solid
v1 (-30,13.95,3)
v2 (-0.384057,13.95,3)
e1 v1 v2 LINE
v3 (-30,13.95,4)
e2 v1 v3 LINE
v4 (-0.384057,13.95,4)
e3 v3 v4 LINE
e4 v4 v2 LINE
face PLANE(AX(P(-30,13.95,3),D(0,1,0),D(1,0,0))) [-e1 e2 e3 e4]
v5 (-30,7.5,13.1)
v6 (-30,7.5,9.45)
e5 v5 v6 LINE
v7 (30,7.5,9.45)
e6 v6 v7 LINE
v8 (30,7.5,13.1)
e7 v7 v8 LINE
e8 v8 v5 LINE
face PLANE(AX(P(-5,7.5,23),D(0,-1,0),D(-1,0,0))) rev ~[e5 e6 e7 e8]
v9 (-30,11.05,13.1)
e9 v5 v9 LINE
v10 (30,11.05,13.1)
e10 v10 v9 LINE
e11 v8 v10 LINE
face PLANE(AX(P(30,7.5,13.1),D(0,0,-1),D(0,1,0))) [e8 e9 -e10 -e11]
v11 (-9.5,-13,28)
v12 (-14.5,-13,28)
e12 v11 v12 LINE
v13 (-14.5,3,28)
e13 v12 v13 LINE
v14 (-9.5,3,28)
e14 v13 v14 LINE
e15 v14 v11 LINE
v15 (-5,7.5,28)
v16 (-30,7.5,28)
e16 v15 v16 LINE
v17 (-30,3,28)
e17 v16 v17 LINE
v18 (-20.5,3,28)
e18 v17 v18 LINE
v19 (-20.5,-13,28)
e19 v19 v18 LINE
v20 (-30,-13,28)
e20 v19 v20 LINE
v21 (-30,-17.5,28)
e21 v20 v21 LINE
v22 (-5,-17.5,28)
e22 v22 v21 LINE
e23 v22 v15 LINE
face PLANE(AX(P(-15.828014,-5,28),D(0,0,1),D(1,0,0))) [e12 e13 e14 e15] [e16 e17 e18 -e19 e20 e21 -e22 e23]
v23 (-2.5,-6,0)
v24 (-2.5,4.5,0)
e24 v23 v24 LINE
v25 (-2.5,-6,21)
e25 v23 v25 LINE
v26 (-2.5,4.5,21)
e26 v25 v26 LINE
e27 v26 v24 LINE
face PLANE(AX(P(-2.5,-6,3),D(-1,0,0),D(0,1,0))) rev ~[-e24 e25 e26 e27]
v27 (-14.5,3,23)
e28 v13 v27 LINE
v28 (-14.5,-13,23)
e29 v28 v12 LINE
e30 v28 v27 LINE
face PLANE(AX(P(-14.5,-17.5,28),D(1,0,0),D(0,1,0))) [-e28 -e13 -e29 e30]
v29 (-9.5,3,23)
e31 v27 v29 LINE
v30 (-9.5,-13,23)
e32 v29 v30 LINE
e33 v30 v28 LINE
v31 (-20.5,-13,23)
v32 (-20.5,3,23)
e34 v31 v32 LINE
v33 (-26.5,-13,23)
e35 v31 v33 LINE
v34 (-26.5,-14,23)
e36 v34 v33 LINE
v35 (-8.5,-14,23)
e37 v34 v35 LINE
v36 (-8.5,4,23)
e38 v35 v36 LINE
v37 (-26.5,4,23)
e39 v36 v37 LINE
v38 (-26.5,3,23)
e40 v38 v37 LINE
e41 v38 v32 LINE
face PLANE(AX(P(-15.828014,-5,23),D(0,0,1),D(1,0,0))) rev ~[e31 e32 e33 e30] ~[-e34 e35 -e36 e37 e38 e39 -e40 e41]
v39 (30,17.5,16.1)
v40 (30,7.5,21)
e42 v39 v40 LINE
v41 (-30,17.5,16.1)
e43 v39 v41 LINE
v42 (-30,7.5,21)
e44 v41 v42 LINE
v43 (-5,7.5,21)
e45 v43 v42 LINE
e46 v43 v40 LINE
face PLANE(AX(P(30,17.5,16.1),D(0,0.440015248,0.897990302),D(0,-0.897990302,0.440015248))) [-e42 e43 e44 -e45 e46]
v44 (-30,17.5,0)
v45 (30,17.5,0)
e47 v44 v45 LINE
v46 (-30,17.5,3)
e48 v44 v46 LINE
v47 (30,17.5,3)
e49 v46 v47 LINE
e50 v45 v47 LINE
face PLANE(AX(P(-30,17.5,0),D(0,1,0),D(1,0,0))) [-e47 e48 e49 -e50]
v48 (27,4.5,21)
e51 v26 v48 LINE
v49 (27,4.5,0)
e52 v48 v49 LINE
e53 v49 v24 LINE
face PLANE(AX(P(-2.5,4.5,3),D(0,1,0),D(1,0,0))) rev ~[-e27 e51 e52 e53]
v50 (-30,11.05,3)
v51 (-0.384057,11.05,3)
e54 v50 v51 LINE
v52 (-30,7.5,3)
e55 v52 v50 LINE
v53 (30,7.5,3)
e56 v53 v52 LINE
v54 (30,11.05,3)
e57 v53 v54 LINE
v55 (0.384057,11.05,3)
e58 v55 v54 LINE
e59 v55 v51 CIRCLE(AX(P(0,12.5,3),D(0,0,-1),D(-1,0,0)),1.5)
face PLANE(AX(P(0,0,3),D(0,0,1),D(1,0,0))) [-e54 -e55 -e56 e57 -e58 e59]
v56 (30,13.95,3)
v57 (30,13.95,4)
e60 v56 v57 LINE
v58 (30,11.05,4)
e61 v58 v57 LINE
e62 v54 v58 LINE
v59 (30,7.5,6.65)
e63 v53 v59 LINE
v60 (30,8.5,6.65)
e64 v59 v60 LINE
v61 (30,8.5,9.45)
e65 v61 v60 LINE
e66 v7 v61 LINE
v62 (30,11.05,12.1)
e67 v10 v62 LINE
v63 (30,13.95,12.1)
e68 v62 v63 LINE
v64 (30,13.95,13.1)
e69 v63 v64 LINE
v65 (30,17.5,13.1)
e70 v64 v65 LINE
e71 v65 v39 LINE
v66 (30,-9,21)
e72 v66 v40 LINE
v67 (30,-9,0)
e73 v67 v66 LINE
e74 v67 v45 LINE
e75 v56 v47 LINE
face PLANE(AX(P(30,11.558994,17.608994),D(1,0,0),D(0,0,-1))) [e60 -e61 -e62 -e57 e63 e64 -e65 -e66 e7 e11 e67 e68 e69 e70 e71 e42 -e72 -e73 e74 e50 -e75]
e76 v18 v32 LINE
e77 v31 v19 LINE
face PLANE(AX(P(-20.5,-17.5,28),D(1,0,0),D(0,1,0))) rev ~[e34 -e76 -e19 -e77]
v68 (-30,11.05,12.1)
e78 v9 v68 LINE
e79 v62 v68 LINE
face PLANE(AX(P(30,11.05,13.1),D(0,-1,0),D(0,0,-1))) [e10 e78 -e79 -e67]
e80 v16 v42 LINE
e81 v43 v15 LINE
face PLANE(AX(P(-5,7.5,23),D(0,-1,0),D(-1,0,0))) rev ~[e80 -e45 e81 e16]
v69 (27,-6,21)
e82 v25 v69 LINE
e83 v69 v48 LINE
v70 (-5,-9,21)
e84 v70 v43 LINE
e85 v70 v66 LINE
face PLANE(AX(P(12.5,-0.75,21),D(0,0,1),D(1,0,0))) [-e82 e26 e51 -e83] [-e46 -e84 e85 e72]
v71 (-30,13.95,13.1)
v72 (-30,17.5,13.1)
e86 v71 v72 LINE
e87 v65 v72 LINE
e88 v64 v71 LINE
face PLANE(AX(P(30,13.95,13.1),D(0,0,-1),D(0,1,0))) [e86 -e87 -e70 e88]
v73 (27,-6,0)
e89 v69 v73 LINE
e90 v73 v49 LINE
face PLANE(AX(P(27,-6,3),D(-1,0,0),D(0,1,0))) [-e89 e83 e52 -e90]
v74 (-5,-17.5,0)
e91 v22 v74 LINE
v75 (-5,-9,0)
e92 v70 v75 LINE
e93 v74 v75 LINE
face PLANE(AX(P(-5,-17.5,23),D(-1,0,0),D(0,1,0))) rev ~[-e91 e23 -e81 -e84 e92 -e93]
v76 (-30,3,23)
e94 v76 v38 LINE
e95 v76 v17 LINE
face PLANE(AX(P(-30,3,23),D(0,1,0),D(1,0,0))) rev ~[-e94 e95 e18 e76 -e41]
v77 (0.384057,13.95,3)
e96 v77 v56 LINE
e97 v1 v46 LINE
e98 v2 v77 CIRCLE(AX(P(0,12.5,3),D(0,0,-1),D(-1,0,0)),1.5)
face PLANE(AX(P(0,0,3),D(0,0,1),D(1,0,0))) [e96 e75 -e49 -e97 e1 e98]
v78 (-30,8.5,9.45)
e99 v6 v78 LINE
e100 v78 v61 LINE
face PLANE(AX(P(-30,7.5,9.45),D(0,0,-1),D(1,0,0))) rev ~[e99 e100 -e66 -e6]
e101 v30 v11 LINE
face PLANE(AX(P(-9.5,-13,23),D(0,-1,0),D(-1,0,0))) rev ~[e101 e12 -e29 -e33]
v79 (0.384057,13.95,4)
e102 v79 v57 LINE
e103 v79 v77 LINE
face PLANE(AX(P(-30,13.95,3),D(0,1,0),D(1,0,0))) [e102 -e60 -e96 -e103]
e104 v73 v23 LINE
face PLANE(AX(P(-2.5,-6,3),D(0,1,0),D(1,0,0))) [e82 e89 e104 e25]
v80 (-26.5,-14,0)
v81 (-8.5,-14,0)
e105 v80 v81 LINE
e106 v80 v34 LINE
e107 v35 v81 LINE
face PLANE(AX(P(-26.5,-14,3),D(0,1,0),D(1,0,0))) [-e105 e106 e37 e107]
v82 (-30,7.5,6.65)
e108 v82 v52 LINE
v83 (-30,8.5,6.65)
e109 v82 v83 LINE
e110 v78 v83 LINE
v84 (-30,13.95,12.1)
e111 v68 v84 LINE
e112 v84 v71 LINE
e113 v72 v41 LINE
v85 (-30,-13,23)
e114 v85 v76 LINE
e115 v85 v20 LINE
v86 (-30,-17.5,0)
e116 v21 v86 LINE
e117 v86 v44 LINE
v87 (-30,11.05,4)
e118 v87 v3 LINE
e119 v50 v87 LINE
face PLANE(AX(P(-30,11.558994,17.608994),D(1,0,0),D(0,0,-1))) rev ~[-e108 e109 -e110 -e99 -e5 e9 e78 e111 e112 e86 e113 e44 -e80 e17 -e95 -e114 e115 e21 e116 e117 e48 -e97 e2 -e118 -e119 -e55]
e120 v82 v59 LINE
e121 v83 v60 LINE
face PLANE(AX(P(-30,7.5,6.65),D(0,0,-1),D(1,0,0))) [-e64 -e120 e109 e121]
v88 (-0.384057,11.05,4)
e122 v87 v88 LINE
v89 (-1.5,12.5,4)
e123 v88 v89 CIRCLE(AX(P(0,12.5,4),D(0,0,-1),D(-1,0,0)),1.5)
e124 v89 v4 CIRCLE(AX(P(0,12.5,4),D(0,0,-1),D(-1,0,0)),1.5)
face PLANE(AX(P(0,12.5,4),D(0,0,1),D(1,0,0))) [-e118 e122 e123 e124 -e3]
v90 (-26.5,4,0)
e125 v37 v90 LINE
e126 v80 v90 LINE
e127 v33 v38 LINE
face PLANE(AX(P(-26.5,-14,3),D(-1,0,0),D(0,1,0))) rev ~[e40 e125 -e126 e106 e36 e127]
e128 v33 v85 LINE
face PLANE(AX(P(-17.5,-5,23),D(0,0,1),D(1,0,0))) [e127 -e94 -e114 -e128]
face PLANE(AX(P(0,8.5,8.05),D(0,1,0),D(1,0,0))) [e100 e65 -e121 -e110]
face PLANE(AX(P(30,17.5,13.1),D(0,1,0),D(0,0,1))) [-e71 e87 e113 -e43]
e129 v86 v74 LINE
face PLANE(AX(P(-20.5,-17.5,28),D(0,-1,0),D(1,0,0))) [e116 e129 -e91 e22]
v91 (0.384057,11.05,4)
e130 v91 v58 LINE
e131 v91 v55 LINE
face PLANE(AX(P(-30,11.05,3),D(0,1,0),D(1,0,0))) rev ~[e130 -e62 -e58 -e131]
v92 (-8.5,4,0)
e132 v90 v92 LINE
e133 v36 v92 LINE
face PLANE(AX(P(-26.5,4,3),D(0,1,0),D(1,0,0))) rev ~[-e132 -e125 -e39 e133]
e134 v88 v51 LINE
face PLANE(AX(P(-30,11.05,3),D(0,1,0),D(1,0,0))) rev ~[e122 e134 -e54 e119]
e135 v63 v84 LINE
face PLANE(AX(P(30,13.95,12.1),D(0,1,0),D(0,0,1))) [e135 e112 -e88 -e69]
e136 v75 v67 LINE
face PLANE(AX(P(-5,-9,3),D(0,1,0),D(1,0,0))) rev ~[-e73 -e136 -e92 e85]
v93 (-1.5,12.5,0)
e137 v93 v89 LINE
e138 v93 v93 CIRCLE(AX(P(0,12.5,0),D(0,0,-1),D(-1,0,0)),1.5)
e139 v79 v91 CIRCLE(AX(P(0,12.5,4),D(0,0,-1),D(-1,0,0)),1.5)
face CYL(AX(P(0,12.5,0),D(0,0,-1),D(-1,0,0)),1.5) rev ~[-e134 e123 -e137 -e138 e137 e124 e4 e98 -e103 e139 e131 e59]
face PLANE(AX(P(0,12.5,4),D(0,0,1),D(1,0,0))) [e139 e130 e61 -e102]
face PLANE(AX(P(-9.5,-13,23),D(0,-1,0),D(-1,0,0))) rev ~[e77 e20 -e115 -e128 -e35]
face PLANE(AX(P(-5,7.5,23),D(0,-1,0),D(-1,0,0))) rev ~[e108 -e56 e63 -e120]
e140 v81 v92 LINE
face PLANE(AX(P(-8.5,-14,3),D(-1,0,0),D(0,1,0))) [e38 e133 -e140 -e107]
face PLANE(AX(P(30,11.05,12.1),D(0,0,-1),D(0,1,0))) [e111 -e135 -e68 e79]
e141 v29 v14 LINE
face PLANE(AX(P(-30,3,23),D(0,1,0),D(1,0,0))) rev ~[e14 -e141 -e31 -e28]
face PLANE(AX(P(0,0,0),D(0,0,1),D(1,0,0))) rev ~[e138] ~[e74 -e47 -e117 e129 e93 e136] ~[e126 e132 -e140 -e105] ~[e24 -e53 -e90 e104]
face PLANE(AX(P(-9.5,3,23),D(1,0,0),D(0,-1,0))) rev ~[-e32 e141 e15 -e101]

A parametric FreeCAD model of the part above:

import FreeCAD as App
import Part
import Sketcher

V = App.Vector
Q = App.Units.Quantity


def add_polygon(sketch, points):
    """Adds a closed chain of lines whose ends are joined by coincident constraints."""
    first, n = sketch.GeometryCount, len(points)
    for a, b in zip(points, points[1:] + points[:1]):
        sketch.addGeometry(Part.LineSegment(App.Vector(*a, 0), App.Vector(*b, 0)), False)
    for i in range(n):
        sketch.addConstraint(Sketcher.Constraint("Coincident", first + i, 2, first + (i + 1) % n, 1))

doc = App.newDocument("Part")
body = doc.addObject("PartDesign::Body", "Body")

# Sketch on XY plane
sketch1 = doc.addObject("Sketcher::SketchObject", "Sketch")
body.addObject(sketch1)
sketch1.AttachmentSupport = (doc.XY_Plane, [""])
sketch1.MapMode = "FlatFace"
add_polygon(sketch1, [(-30, 18), (-30, -18), (30, -18), (30, 18)])  # lines 0-3
sketch1.addConstraint([
    Sketcher.Constraint("Vertical", 0),
    Sketcher.Constraint("Horizontal", 1),
    Sketcher.Constraint("Vertical", 2),
    Sketcher.Constraint("Horizontal", 3),
    Sketcher.Constraint("Symmetric", 0, 2, 2, 2, -1, 1),
    Sketcher.Constraint("DistanceX", 1, 1, 1, 2, Q("60 mm")),
    Sketcher.Constraint("DistanceY", 0, 2, 0, 1, Q("35 mm")),
])
pad1 = doc.addObject("PartDesign::Pad", "Pad")
body.addObject(pad1)
pad1.Profile = sketch1
pad1.Length = 3

# Sketch on XY plane
sketch2 = doc.addObject("Sketcher::SketchObject", "Sketch001")
body.addObject(sketch2)
sketch2.AttachmentSupport = (doc.XY_Plane, [""])
sketch2.MapMode = "FlatFace"
sketch2.AttachmentOffset = App.Placement(V(0, 0, 3), App.Rotation())
add_polygon(sketch2, [(-30, 13.9), (-30, 11.1), (30, 11.1), (30, 13.9)])  # lines 0-3
sketch2.addConstraint([
    Sketcher.Constraint("Vertical", 0),
    Sketcher.Constraint("Horizontal", 1),
    Sketcher.Constraint("Vertical", 2),
    Sketcher.Constraint("Horizontal", 3),
    Sketcher.Constraint("DistanceX", 1, 1, 1, 2, Q("60 mm")),
    Sketcher.Constraint("DistanceY", 0, 2, 0, 1, Q("2.9 mm")),
    Sketcher.Constraint("DistanceX", 0, 2, -1, 1, Q("30 mm")),
    Sketcher.Constraint("DistanceY", -1, 1, 0, 2, Q("11.05 mm")),
])
pad2 = doc.addObject("PartDesign::Pad", "Pad001")
body.addObject(pad2)
pad2.Profile = sketch2
pad2.Length = 1

# Sketch on XY plane
sketch3 = doc.addObject("Sketcher::SketchObject", "Sketch002")
body.addObject(sketch3)
sketch3.AttachmentSupport = (doc.XY_Plane, [""])
sketch3.MapMode = "FlatFace"
sketch3.addGeometry(Part.Circle(V(0, 12.5, 0), V(0, 0, 1), 1.5), False)
sketch3.addConstraint([
    Sketcher.Constraint("PointOnObject", 0, 3, -2),
    Sketcher.Constraint("Diameter", 0, Q("3 mm")),
    Sketcher.Constraint("DistanceY", -1, 1, 0, 3, Q("12.5 mm")),
])
pocket1 = doc.addObject("PartDesign::Pocket", "Pocket")
body.addObject(pocket1)
pocket1.Profile = sketch3
pocket1.Type = "ThroughAll"
pocket1.Reversed = True

# Sketch on XY plane
sketch4 = doc.addObject("Sketcher::SketchObject", "Sketch003")
body.addObject(sketch4)
sketch4.AttachmentSupport = (doc.XY_Plane, [""])
sketch4.MapMode = "FlatFace"
sketch4.AttachmentOffset = App.Placement(V(0, 0, 3), App.Rotation())
add_polygon(sketch4, [(-30, 8), (-30, -18), (-5, -18), (-5, 8)])  # lines 0-3
add_polygon(sketch4, [(-8, -14), (-26, -14), (-26, 4), (-8, 4)])  # lines 4-7
sketch4.addConstraint([
    Sketcher.Constraint("Vertical", 0),
    Sketcher.Constraint("Horizontal", 1),
    Sketcher.Constraint("Vertical", 2),
    Sketcher.Constraint("Horizontal", 3),
    Sketcher.Constraint("Horizontal", 4),
    Sketcher.Constraint("Vertical", 5),
    Sketcher.Constraint("Horizontal", 6),
    Sketcher.Constraint("Vertical", 7),
    Sketcher.Constraint("Equal", 3, 0),
    Sketcher.Constraint("Equal", 6, 5),
    Sketcher.Constraint("DistanceX", 1, 1, 1, 2, Q("25 mm")),
    Sketcher.Constraint("DistanceX", 4, 2, 4, 1, Q("18 mm")),
    Sketcher.Constraint("DistanceX", 0, 2, -1, 1, Q("30 mm")),
    Sketcher.Constraint("DistanceY", 4, 2, -1, 1, Q("14 mm")),
    Sketcher.Constraint("DistanceY", 0, 2, -1, 1, Q("17.5 mm")),
    Sketcher.Constraint("DistanceX", 4, 2, -1, 1, Q("26.5 mm")),
])
pad3 = doc.addObject("PartDesign::Pad", "Pad002")
body.addObject(pad3)
pad3.Profile = sketch4
pad3.Length = 20

# Sketch on XY plane
sketch5 = doc.addObject("Sketcher::SketchObject", "Sketch004")
body.addObject(sketch5)
sketch5.AttachmentSupport = (doc.XY_Plane, [""])
sketch5.MapMode = "FlatFace"
sketch5.AttachmentOffset = App.Placement(V(0, 0, 23), App.Rotation())
add_polygon(sketch5, [(-26, 4), (-26, -14), (-8, -14), (-8, 4)])  # lines 0-3
sketch5.addConstraint([
    Sketcher.Constraint("Vertical", 0),
    Sketcher.Constraint("Horizontal", 1),
    Sketcher.Constraint("Vertical", 2),
    Sketcher.Constraint("Horizontal", 3),
    Sketcher.Constraint("Equal", 3, 0),
    Sketcher.Constraint("DistanceX", 1, 1, 1, 2, Q("18 mm")),
    Sketcher.Constraint("DistanceY", 0, 2, -1, 1, Q("14 mm")),
    Sketcher.Constraint("DistanceX", 0, 2, -1, 1, Q("26.5 mm")),
])
pocket2 = doc.addObject("PartDesign::Pocket", "Pocket001")
body.addObject(pocket2)
pocket2.Profile = sketch5
pocket2.Type = "ThroughAll"
pocket2.Midplane = True

# Sketch on XY plane
sketch6 = doc.addObject("Sketcher::SketchObject", "Sketch005")
body.addObject(sketch6)
sketch6.AttachmentSupport = (doc.XY_Plane, [""])
sketch6.MapMode = "FlatFace"
sketch6.AttachmentOffset = App.Placement(V(0, 0, 23), App.Rotation())
add_polygon(sketch6, [(-30, -17.5), (-5, -17.5), (-5, 7.5), (-30, 7.5), (-30, 3), (-9.5, 3), (-9.5, -13), (-30, -13)])  # lines 0-7
sketch6.addConstraint([
    Sketcher.Constraint("Horizontal", 0),
    Sketcher.Constraint("Vertical", 1),
    Sketcher.Constraint("Horizontal", 2),
    Sketcher.Constraint("Vertical", 3),
    Sketcher.Constraint("Horizontal", 4),
    Sketcher.Constraint("Vertical", 5),
    Sketcher.Constraint("Horizontal", 6),
    Sketcher.Constraint("Vertical", 7),
    Sketcher.Constraint("Vertical", 3, 2, 6, 2),
    Sketcher.Constraint("Equal", 2, 1),
    Sketcher.Constraint("Equal", 3, 7),
    Sketcher.Constraint("DistanceX", 0, 1, 0, 2, Q("25 mm")),
    Sketcher.Constraint("DistanceY", 5, 2, 5, 1, Q("16 mm")),
    Sketcher.Constraint("DistanceX", 4, 1, 4, 2, Q("20.5 mm")),
    Sketcher.Constraint("DistanceX", 0, 2, -1, 1, Q("5 mm")),
    Sketcher.Constraint("DistanceY", -1, 1, 3, 2, Q("3 mm")),
])
pad4 = doc.addObject("PartDesign::Pad", "Pad003")
body.addObject(pad4)
pad4.Profile = sketch6
pad4.Length = 5

# Sketch on XY plane
sketch7 = doc.addObject("Sketcher::SketchObject", "Sketch006")
body.addObject(sketch7)
sketch7.AttachmentSupport = (doc.XY_Plane, [""])
sketch7.MapMode = "FlatFace"
sketch7.AttachmentOffset = App.Placement(V(0, 0, 28), App.Rotation())
add_polygon(sketch7, [(-20, 8), (-20, -18), (-14, -18), (-14, 8)])  # lines 0-3
sketch7.addConstraint([
    Sketcher.Constraint("Vertical", 0),
    Sketcher.Constraint("Horizontal", 1),
    Sketcher.Constraint("Vertical", 2),
    Sketcher.Constraint("Horizontal", 3),
    Sketcher.Constraint("DistanceX", 1, 1, 1, 2, Q("6 mm")),
    Sketcher.Constraint("DistanceY", 0, 2, 0, 1, Q("25 mm")),
    Sketcher.Constraint("DistanceX", 0, 2, -1, 1, Q("20.5 mm")),
    Sketcher.Constraint("DistanceY", 0, 2, -1, 1, Q("17.5 mm")),
])
pad5 = doc.addObject("PartDesign::Pad", "Pad004")
body.addObject(pad5)
pad5.Profile = sketch7
pad5.Length = 5
pad5.Reversed = True

# Sketch on XY plane
sketch8 = doc.addObject("Sketcher::SketchObject", "Sketch007")
body.addObject(sketch8)
sketch8.AttachmentSupport = (doc.XY_Plane, [""])
sketch8.MapMode = "FlatFace"
add_polygon(sketch8, [(27, 4), (27, -6), (-2, -6), (-2, 4)])  # lines 0-3
sketch8.addConstraint([
    Sketcher.Constraint("Vertical", 0),
    Sketcher.Constraint("Horizontal", 1),
    Sketcher.Constraint("Vertical", 2),
    Sketcher.Constraint("Horizontal", 3),
    Sketcher.Constraint("DistanceX", 1, 2, 1, 1, Q("29.5 mm")),
    Sketcher.Constraint("DistanceY", 0, 2, 0, 1, Q("10.5 mm")),
    Sketcher.Constraint("DistanceX", -1, 1, 0, 2, Q("27 mm")),
    Sketcher.Constraint("DistanceY", 0, 2, -1, 1, Q("6 mm")),
])
pocket3 = doc.addObject("PartDesign::Pocket", "Pocket002")
body.addObject(pocket3)
pocket3.Profile = sketch8
pocket3.Type = "ThroughAll"
pocket3.Reversed = True

# Sketch on XY plane
sketch9 = doc.addObject("Sketcher::SketchObject", "Sketch008")
body.addObject(sketch9)
sketch9.AttachmentSupport = (doc.XY_Plane, [""])
sketch9.MapMode = "FlatFace"
sketch9.AttachmentOffset = App.Placement(V(0, 0, 3), App.Rotation())
add_polygon(sketch9, [(-5, 8), (-5, -9), (30, -9), (30, 8)])  # lines 0-3
add_polygon(sketch9, [(27, -6), (-2, -6), (-2, 4), (27, 4)])  # lines 4-7
sketch9.addConstraint([
    Sketcher.Constraint("Vertical", 0),
    Sketcher.Constraint("Horizontal", 1),
    Sketcher.Constraint("Vertical", 2),
    Sketcher.Constraint("Horizontal", 3),
    Sketcher.Constraint("Horizontal", 4),
    Sketcher.Constraint("Vertical", 5),
    Sketcher.Constraint("Horizontal", 6),
    Sketcher.Constraint("Vertical", 7),
    Sketcher.Constraint("DistanceX", 1, 1, 1, 2, Q("35 mm")),
    Sketcher.Constraint("DistanceX", 4, 2, 4, 1, Q("29.5 mm")),
    Sketcher.Constraint("DistanceY", 0, 2, 0, 1, Q("16.5 mm")),
    Sketcher.Constraint("DistanceY", 5, 1, 5, 2, Q("10.5 mm")),
    Sketcher.Constraint("DistanceX", 0, 2, -1, 1, Q("5 mm")),
    Sketcher.Constraint("DistanceY", 0, 2, -1, 1, Q("9 mm")),
    Sketcher.Constraint("DistanceY", 4, 2, -1, 1, Q("6 mm")),
    Sketcher.Constraint("DistanceX", -1, 1, 6, 2, Q("27 mm")),
])
pad6 = doc.addObject("PartDesign::Pad", "Pad005")
body.addObject(pad6)
pad6.Profile = sketch9
pad6.Length = 18

# Sketch on XY plane
sketch10 = doc.addObject("Sketcher::SketchObject", "Sketch009")
body.addObject(sketch10)
sketch10.AttachmentSupport = (doc.XY_Plane, [""])
sketch10.MapMode = "FlatFace"
sketch10.AttachmentOffset = App.Placement(V(0, 0, 3), App.Rotation())
add_polygon(sketch10, [(-5, -9), (-5, -18), (30, -18), (30, -9)])  # lines 0-3
sketch10.addConstraint([
    Sketcher.Constraint("Vertical", 0),
    Sketcher.Constraint("Horizontal", 1),
    Sketcher.Constraint("Vertical", 2),
    Sketcher.Constraint("Horizontal", 3),
    Sketcher.Constraint("DistanceX", 1, 1, 1, 2, Q("35 mm")),
    Sketcher.Constraint("DistanceY", 0, 2, 0, 1, Q("8.5 mm")),
    Sketcher.Constraint("DistanceX", 0, 2, -1, 1, Q("5 mm")),
    Sketcher.Constraint("DistanceY", 2, 2, -1, 1, Q("9 mm")),
])
pocket4 = doc.addObject("PartDesign::Pocket", "Pocket003")
body.addObject(pocket4)
pocket4.Profile = sketch10
pocket4.Type = "ThroughAll"

# Sketch on XZ plane
sketch11 = doc.addObject("Sketcher::SketchObject", "Sketch010")
body.addObject(sketch11)
sketch11.AttachmentSupport = (doc.XZ_Plane, [""])
sketch11.MapMode = "FlatFace"
sketch11.AttachmentOffset = App.Placement(V(0, 0, -7.5), App.Rotation())
add_polygon(sketch11, [(-30, 6.7), (-30, 9.4), (30, 9.4), (30, 6.7)])  # lines 0-3
sketch11.addConstraint([
    Sketcher.Constraint("Vertical", 0),
    Sketcher.Constraint("Horizontal", 1),
    Sketcher.Constraint("Vertical", 2),
    Sketcher.Constraint("Horizontal", 3),
    Sketcher.Constraint("DistanceX", 1, 1, 1, 2, Q("60 mm")),
    Sketcher.Constraint("DistanceY", 0, 1, 0, 2, Q("2.8 mm")),
    Sketcher.Constraint("DistanceX", 0, 2, -1, 1, Q("30 mm")),
    Sketcher.Constraint("DistanceY", -1, 1, 0, 2, Q("9.45 mm")),
])
pad7 = doc.addObject("PartDesign::Pad", "Pad006")
body.addObject(pad7)
pad7.Profile = sketch11
pad7.Length = 1
pad7.Reversed = True

# Sketch on YZ plane
sketch12 = doc.addObject("Sketcher::SketchObject", "Sketch011")
body.addObject(sketch12)
sketch12.AttachmentSupport = (doc.YZ_Plane, [""])
sketch12.MapMode = "FlatFace"
sketch12.AttachmentOffset = App.Placement(V(0, 0, 30), App.Rotation())
add_polygon(sketch12, [(7.5, 13.1), (11.1, 13.1), (11.1, 12.1), (13.9, 12.1), (13.9, 13.1), (17.5, 13.1), (17.5, 16.1), (7.5, 16.1)])  # lines 0-7
sketch12.addConstraint([
    Sketcher.Constraint("Horizontal", 0),
    Sketcher.Constraint("Vertical", 1),
    Sketcher.Constraint("Horizontal", 2),
    Sketcher.Constraint("Vertical", 3),
    Sketcher.Constraint("Horizontal", 4),
    Sketcher.Constraint("Vertical", 5),
    Sketcher.Constraint("Horizontal", 6),
    Sketcher.Constraint("Vertical", 7),
    Sketcher.Constraint("Horizontal", 0, 2, 3, 2),
    Sketcher.Constraint("Equal", 0, 4),
    Sketcher.Constraint("DistanceX", 6, 2, 6, 1, Q("10 mm")),
    Sketcher.Constraint("DistanceY", 1, 2, 1, 1, Q("1 mm")),
    Sketcher.Constraint("DistanceY", 5, 1, 5, 2, Q("3 mm")),
    Sketcher.Constraint("DistanceX", 2, 1, 2, 2, Q("2.9 mm")),
    Sketcher.Constraint("DistanceY", -1, 1, 0, 2, Q("13.1 mm")),
    Sketcher.Constraint("DistanceX", -1, 1, 4, 2, Q("17.5 mm")),
])
pad8 = doc.addObject("PartDesign::Pad", "Pad007")
body.addObject(pad8)
pad8.Profile = sketch12
pad8.Length = 60
pad8.Reversed = True

# Sketch on YZ plane
sketch13 = doc.addObject("Sketcher::SketchObject", "Sketch012")
body.addObject(sketch13)
sketch13.AttachmentSupport = (doc.YZ_Plane, [""])
sketch13.MapMode = "FlatFace"
sketch13.AttachmentOffset = App.Placement(V(0, 0, 30), App.Rotation())
add_polygon(sketch13, [(7.5, 16.1), (17.5, 16.1), (7.5, 21)])  # lines 0-2
sketch13.addConstraint([
    Sketcher.Constraint("Horizontal", 0),
    Sketcher.Constraint("Vertical", 2),
    Sketcher.Constraint("DistanceX", 0, 1, 0, 2, Q("10 mm")),
    Sketcher.Constraint("DistanceY", 2, 2, 2, 1, Q("4.9 mm")),
    Sketcher.Constraint("DistanceY", -1, 1, 1, 2, Q("21 mm")),
    Sketcher.Constraint("DistanceX", -1, 1, 0, 2, Q("17.5 mm")),
])
pad9 = doc.addObject("PartDesign::Pad", "Pad008")
body.addObject(pad9)
pad9.Profile = sketch13
pad9.Length = 60
pad9.Reversed = True

doc.recompute()
